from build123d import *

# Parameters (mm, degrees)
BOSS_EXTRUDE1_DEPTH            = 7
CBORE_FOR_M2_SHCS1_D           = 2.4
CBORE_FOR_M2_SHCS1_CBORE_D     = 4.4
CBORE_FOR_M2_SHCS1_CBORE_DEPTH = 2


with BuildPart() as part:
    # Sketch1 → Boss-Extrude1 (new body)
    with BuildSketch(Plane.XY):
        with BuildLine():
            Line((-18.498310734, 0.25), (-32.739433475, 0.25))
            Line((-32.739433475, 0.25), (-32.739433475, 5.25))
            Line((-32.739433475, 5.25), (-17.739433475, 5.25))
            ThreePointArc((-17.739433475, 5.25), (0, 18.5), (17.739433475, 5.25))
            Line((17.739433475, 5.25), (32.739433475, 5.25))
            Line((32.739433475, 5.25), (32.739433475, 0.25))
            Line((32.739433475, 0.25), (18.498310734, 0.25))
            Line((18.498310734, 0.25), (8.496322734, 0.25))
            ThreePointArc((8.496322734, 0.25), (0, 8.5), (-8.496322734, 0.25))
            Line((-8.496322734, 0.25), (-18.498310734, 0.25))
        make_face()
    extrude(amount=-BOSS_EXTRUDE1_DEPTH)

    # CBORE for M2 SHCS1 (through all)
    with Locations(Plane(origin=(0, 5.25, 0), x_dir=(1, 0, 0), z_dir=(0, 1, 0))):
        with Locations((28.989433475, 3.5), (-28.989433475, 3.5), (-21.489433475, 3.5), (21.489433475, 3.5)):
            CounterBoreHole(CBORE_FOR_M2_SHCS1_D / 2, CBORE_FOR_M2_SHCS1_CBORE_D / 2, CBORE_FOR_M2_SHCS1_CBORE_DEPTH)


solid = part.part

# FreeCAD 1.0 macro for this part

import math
import FreeCAD as App
import Part
import Sketcher
from FreeCAD import Vector
Q = App.Units.Quantity

doc = App.newDocument("Part")
body = doc.addObject("PartDesign::Body", "Body")

# Sketch on XY plane
sketch1 = doc.addObject("Sketcher::SketchObject", "Sketch")
body.addObject(sketch1)
sketch1.AttachmentSupport = (doc.XY_Plane, [""])
sketch1.MapMode = "FlatFace"
sketch1.addGeometry(Part.LineSegment(Vector(-32.739433, 5.25, 0), Vector(-32.739433, 0.25, 0)), False)
sketch1.addGeometry(Part.LineSegment(Vector(-32.739433, 0.25, 0), Vector(-8.496323, 0.25, 0)), False)
sketch1.addGeometry(Part.ArcOfCircle(Part.Circle(Vector(0, 0, 0), Vector(0, 0, 1), 8.5), math.radians(1.685413), math.radians(178.314587)), False)
sketch1.addGeometry(Part.LineSegment(Vector(8.496323, 0.25, 0), Vector(32.739433, 0.25, 0)), False)
sketch1.addGeometry(Part.LineSegment(Vector(32.739433, 0.25, 0), Vector(32.739433, 5.25, 0)), False)
sketch1.addGeometry(Part.LineSegment(Vector(32.739433, 5.25, 0), Vector(17.739433, 5.25, 0)), False)
sketch1.addGeometry(Part.ArcOfCircle(Part.Circle(Vector(0, 0, 0), Vector(0, 0, 1), 18.5), math.radians(16.486163), math.radians(163.513837)), False)
sketch1.addGeometry(Part.LineSegment(Vector(-17.739433, 5.25, 0), Vector(-32.739433, 5.25, 0)), False)
sketch1.addConstraint(Sketcher.Constraint("Coincident", 0, 2, 1, 1))
sketch1.addConstraint(Sketcher.Constraint("Coincident", 1, 2, 2, 2))
sketch1.addConstraint(Sketcher.Constraint("Coincident", 2, 1, 3, 1))
sketch1.addConstraint(Sketcher.Constraint("Coincident", 3, 2, 4, 1))
sketch1.addConstraint(Sketcher.Constraint("Coincident", 4, 2, 5, 1))
sketch1.addConstraint(Sketcher.Constraint("Coincident", 5, 2, 6, 1))
sketch1.addConstraint(Sketcher.Constraint("Coincident", 6, 2, 7, 1))
sketch1.addConstraint(Sketcher.Constraint("Coincident", 7, 2, 0, 1))
sketch1.addConstraint(Sketcher.Constraint("Vertical", 0))
sketch1.addConstraint(Sketcher.Constraint("Horizontal", 1))
sketch1.addConstraint(Sketcher.Constraint("Horizontal", 3))
sketch1.addConstraint(Sketcher.Constraint("Vertical", 4))
sketch1.addConstraint(Sketcher.Constraint("Horizontal", 5))
sketch1.addConstraint(Sketcher.Constraint("Horizontal", 7))
sketch1.addConstraint(Sketcher.Constraint("Coincident", 2, 3, -1, 1))
sketch1.addConstraint(Sketcher.Constraint("Coincident", 6, 3, -1, 1))
sketch1.addConstraint(Sketcher.Constraint("Symmetric", 0, 2, 3, 2, -2))
sketch1.addConstraint(Sketcher.Constraint("Horizontal", 5, 2, 6, 2))
sketch1.addConstraint(Sketcher.Constraint("Radius", 2, Q("8.5 mm")))
sketch1.addConstraint(Sketcher.Constraint("Radius", 6, Q("18.5 mm")))
sketch1.addConstraint(Sketcher.Constraint("DistanceX", 5, 2, 5, 1, Q("15 mm")))
sketch1.addConstraint(Sketcher.Constraint("DistanceY", 0, 2, 0, 1, Q("5 mm")))
sketch1.addConstraint(Sketcher.Constraint("DistanceY", -1, 1, 0, 2, Q("0.25 mm")))
pad1 = doc.addObject("PartDesign::Pad", "Pad")
body.addObject(pad1)
pad1.Profile = sketch1
pad1.Length = 7
pad1.Reversed = True

# Sketch on XZ plane
sketch2 = doc.addObject("Sketcher::SketchObject", "Sketch001")
body.addObject(sketch2)
sketch2.AttachmentSupport = (doc.XZ_Plane, [""])
sketch2.MapMode = "FlatFace"
sketch2.AttachmentOffset = App.Placement(Vector(0, 0, -5.25), App.Rotation())
sketch2.addGeometry(Part.Circle(Vector(28.989433, -3.5, 0), Vector(0, 0, 1), 1.2), False)
sketch2.addGeometry(Part.Circle(Vector(-28.989433, -3.5, 0), Vector(0, 0, 1), 1.2), False)
sketch2.addGeometry(Part.Circle(Vector(-21.489433, -3.5, 0), Vector(0, 0, 1), 1.2), False)
sketch2.addGeometry(Part.Circle(Vector(21.489433, -3.5, 0), Vector(0, 0, 1), 1.2), False)
sketch2.addConstraint(Sketcher.Constraint("Equal", 0, 1))
sketch2.addConstraint(Sketcher.Constraint("Equal", 1, 2))
sketch2.addConstraint(Sketcher.Constraint("Equal", 2, 3))
sketch2.addConstraint(Sketcher.Constraint("Symmetric", 0, 3, 1, 3, -2))
sketch2.addConstraint(Sketcher.Constraint("Symmetric", 2, 3, 3, 3, -2))
sketch2.addConstraint(Sketcher.Constraint("Horizontal", 1, 3, 2, 3))
sketch2.addConstraint(Sketcher.Constraint("Diameter", 0, Q("2.4 mm")))
sketch2.addConstraint(Sketcher.Constraint("DistanceY", 0, 3, -1, 1, Q("3.5 mm")))
sketch2.addConstraint(Sketcher.Constraint("DistanceX", 1, 3, 2, 3, Q("7.5 mm")))
sketch2.addConstraint(Sketcher.Constraint("DistanceX", -1, 1, 0, 3, Q("28.989433 mm")))
doc.recompute()
hole = doc.addObject("PartDesign::Hole", "Hole")
body.addObject(hole)
hole.Profile = sketch2
hole.ThreadType = "None"
hole.Diameter = 2.4
hole.DepthType = "ThroughAll"
hole.HoleCutType = "Counterbore"
hole.HoleCutDiameter = 4.4
hole.HoleCutDepth = 2
hole.Reversed = True

doc.recompute()
